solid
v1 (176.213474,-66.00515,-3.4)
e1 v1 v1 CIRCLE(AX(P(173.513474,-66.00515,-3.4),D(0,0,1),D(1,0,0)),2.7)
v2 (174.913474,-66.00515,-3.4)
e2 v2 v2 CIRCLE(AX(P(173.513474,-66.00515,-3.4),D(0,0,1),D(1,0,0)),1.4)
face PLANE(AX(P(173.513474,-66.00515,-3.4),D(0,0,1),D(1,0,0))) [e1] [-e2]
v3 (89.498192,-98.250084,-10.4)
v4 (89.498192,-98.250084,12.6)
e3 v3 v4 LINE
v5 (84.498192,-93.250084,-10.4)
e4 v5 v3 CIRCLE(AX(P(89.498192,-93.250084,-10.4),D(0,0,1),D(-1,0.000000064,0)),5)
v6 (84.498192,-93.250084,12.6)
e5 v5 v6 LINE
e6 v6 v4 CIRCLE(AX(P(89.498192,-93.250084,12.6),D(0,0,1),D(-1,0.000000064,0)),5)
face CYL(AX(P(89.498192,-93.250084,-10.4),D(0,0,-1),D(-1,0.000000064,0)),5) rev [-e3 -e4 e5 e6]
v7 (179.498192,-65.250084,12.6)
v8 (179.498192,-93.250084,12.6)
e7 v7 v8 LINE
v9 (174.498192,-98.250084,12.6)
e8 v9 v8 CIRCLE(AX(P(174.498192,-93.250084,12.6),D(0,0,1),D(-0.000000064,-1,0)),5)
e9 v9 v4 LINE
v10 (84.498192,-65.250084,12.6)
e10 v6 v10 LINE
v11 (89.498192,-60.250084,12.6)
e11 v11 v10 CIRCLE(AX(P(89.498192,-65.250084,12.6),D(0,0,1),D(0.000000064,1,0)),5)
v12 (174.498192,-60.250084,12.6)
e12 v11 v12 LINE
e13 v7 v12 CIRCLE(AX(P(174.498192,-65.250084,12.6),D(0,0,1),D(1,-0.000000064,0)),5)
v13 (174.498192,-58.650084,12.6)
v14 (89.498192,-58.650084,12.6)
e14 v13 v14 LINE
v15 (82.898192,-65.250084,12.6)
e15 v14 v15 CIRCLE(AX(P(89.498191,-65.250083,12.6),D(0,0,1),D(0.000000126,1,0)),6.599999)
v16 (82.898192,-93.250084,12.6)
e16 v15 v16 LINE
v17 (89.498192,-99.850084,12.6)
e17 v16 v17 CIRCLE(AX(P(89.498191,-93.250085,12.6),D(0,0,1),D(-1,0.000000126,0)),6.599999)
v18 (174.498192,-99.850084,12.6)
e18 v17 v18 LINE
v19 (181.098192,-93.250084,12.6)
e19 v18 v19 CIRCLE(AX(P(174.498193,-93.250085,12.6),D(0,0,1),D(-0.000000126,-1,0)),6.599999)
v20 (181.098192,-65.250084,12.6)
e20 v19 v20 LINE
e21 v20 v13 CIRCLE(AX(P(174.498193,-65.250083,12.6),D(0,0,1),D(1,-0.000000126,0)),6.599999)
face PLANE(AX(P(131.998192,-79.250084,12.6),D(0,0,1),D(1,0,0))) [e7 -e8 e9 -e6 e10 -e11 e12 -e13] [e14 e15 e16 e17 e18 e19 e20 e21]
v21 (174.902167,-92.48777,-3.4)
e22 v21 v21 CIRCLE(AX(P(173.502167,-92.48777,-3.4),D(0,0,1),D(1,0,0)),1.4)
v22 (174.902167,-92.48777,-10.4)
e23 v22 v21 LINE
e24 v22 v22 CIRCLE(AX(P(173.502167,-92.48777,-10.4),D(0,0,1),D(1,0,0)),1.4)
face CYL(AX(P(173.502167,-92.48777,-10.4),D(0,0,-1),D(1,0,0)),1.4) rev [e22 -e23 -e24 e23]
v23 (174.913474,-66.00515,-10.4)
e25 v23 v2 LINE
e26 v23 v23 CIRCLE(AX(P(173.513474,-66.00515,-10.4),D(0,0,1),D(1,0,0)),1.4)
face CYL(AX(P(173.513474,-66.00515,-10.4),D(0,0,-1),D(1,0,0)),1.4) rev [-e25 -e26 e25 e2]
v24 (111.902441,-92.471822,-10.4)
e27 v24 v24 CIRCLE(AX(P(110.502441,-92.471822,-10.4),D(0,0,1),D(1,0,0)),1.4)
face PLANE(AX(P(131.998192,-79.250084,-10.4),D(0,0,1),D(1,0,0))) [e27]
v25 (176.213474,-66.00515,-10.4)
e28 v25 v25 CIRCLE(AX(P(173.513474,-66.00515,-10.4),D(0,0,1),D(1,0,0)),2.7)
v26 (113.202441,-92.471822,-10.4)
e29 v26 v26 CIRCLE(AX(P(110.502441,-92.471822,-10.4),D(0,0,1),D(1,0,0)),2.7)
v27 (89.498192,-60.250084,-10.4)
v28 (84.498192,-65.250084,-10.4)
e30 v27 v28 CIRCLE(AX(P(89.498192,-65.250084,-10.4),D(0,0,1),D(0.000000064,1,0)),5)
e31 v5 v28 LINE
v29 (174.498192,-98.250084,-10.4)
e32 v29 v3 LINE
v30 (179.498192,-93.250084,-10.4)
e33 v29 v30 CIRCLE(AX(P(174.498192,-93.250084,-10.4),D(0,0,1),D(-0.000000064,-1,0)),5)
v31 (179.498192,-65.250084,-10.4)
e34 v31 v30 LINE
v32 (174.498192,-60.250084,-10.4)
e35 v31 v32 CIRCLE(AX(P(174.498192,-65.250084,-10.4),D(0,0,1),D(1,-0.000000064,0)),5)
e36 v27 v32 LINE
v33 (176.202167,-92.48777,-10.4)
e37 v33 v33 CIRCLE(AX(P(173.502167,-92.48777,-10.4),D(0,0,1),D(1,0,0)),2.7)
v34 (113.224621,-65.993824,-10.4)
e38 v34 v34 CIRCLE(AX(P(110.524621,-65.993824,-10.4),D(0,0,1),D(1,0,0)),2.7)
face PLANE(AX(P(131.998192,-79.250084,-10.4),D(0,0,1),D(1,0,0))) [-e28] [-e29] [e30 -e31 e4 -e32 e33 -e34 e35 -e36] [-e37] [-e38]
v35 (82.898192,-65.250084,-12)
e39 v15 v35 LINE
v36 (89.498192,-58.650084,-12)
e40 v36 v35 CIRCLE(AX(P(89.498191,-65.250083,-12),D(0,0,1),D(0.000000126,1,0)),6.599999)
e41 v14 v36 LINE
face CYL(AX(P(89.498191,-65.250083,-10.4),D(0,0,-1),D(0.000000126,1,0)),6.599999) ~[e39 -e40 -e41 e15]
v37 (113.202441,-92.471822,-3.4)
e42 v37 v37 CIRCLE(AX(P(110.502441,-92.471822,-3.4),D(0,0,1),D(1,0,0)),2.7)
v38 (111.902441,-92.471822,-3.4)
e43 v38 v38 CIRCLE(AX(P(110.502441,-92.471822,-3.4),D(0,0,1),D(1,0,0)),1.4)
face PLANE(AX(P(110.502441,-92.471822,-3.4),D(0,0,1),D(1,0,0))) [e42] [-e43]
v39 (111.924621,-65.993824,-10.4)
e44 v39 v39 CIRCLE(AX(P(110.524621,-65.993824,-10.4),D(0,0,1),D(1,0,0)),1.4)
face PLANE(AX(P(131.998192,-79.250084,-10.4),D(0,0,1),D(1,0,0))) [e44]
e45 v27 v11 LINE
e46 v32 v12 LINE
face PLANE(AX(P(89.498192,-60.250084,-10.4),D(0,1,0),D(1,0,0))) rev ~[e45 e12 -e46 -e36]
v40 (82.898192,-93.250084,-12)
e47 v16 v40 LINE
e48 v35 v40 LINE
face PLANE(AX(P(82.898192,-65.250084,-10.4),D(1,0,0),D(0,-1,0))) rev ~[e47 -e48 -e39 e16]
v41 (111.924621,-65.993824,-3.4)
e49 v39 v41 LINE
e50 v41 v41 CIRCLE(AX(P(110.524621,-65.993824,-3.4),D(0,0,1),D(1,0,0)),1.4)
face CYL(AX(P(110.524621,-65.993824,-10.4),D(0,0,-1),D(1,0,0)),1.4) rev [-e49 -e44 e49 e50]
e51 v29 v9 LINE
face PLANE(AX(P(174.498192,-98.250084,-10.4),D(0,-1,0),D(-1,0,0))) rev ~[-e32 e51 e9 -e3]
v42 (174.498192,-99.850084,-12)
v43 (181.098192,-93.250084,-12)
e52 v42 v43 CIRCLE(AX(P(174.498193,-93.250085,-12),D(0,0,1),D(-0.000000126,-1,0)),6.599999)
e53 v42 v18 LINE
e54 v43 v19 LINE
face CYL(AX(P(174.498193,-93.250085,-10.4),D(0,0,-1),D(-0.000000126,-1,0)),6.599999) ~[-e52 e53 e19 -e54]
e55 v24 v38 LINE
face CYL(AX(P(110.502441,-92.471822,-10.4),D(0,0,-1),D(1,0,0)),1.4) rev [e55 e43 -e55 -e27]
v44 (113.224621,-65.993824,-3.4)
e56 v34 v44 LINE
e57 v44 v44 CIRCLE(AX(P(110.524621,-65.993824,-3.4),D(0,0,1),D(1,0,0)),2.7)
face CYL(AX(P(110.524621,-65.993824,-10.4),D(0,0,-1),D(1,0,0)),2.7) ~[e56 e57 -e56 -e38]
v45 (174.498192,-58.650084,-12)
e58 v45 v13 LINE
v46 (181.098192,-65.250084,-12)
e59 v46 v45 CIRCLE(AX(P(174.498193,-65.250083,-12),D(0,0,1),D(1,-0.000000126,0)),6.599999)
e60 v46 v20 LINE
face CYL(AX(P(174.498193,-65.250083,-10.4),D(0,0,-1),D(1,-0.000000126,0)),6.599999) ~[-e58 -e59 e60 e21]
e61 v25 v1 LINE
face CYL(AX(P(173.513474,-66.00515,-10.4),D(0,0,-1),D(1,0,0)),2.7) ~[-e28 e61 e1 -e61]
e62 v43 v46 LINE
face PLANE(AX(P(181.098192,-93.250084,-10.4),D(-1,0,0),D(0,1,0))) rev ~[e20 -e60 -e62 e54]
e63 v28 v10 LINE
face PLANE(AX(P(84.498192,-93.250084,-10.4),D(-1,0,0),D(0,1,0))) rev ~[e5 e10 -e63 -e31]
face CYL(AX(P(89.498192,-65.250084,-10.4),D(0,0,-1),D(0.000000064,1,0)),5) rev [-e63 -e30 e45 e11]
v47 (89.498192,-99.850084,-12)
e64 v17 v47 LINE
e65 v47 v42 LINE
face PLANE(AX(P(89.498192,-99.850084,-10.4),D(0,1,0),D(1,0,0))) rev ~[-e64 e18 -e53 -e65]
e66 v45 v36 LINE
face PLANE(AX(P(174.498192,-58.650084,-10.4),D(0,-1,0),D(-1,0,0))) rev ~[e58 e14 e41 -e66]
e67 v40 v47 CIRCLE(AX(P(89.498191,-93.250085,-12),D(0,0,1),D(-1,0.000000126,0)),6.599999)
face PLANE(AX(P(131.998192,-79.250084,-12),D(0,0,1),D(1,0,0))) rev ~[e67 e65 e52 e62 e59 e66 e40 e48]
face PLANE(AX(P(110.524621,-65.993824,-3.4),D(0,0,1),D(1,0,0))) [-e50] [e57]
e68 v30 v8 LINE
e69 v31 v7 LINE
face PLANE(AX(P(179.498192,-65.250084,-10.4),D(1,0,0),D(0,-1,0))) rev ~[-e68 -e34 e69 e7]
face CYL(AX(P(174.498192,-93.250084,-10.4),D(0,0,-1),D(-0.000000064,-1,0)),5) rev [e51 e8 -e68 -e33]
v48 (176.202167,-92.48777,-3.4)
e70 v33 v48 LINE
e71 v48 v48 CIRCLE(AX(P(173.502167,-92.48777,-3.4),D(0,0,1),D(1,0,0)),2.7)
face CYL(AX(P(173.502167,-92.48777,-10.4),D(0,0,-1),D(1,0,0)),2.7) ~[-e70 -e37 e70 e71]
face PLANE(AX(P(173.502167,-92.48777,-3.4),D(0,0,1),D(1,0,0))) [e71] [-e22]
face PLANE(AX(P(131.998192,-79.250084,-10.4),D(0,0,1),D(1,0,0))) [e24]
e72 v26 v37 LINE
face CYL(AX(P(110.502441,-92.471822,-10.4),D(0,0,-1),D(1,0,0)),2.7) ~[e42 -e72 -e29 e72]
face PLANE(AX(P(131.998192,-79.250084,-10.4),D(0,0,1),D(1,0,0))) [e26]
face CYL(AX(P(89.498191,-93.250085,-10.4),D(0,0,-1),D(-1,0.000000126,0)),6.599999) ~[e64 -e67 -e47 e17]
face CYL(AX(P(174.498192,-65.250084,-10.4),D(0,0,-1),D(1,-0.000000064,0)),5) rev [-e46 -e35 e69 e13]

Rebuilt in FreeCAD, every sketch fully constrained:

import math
import FreeCAD as App
import Part
import Sketcher

doc = App.newDocument("Part")
body = doc.addObject("PartDesign::Body", "Body")
body.AllowCompound = True

sketch1 = body.newObject("Sketcher::SketchObject", "Sketch")
sketch1.AttachmentSupport = (doc.getObject("XY_Plane"), [""])
sketch1.MapMode = "FlatFace"
sketch1.AttachmentOffset = App.Placement(App.Vector(0, 0, -10.4), App.Rotation())
sketch1.addGeometry([
    Part.Circle(App.Vector(90.5, -66, 0), App.Vector(0, 0, 1), 2.7),
    Part.Circle(App.Vector(90.5, -66, 0), App.Vector(0, 0, 1), 1.4),
    Part.Circle(App.Vector(90.5, -92.5, 0), App.Vector(0, 0, 1), 2.7),
    Part.Circle(App.Vector(90.5, -92.5, 0), App.Vector(0, 0, 1), 1.4),
    Part.Circle(App.Vector(153.5, -66, 0), App.Vector(0, 0, 1), 2.7),
    Part.Circle(App.Vector(153.5, -66, 0), App.Vector(0, 0, 1), 1.4),
    Part.Circle(App.Vector(153.5, -92.5, 0), App.Vector(0, 0, 1), 2.7),
    Part.Circle(App.Vector(153.5, -92.5, 0), App.Vector(0, 0, 1), 1.4),
], False)
sketch1.addConstraint([
    Sketcher.Constraint("Coincident", 1, 3, 0, 3),
    Sketcher.Constraint("Coincident", 3, 3, 2, 3),
    Sketcher.Constraint("Coincident", 5, 3, 4, 3),
    Sketcher.Constraint("Coincident", 7, 3, 6, 3),
    Sketcher.Constraint("Equal", 0, 2),
    Sketcher.Constraint("Equal", 1, 3),
    Sketcher.Constraint("Equal", 2, 4),
    Sketcher.Constraint("Equal", 3, 5),
    Sketcher.Constraint("Equal", 4, 6),
    Sketcher.Constraint("Equal", 5, 7),
    Sketcher.Constraint("Diameter", 0, 5.4),
    Sketcher.Constraint("Diameter", 1, 2.8),
    Sketcher.Constraint("DistanceX", -1, 1, 0, 3, 90.524621),
    Sketcher.Constraint("DistanceX", -1, 1, 2, 3, 90.502441),
    Sketcher.Constraint("DistanceY", 4, 3, -1, 1, 66.00515),
    Sketcher.Constraint("DistanceY", 6, 3, -1, 1, 92.48777),
    Sketcher.Constraint("DistanceY", 0, 3, -1, 1, 65.993824),
    Sketcher.Constraint("DistanceY", 2, 3, -1, 1, 92.471822),
    Sketcher.Constraint("DistanceX", -1, 1, 4, 3, 153.513474),
    Sketcher.Constraint("DistanceX", -1, 1, 6, 3, 153.502167),
])
pad1 = body.newObject("PartDesign::Pad", "Pad")
pad1.Profile = sketch1
pad1.Length = 7
body2 = doc.addObject("PartDesign::Body", "Body001")
body2.AllowCompound = True
doc.recompute()

body.Placement = App.Placement(App.Vector(20, 0, 0), App.Rotation(App.Vector(0, 0, 1), 0))
boolean = body2.newObject("PartDesign::Boolean", "Boolean")
boolean.Type = "Fuse"
boolean.addObjects([body])
body3 = doc.addObject("PartDesign::Body", "Body002")

sketch2 = body3.newObject("Sketcher::SketchObject", "Sketch001")
sketch2.AttachmentSupport = (doc.getObject("XY_Plane002"), [""])
sketch2.MapMode = "FlatFace"
sketch2.addGeometry([
    Part.LineSegment(App.Vector(89.5, -99.9, 0), App.Vector(174.5, -99.9, 0)),
    Part.ArcOfCircle(Part.Circle(App.Vector(174.5, -93.3, 0), App.Vector(0, 0, 1), 6.6), math.radians(-90), math.radians(0)),
    Part.LineSegment(App.Vector(181.1, -93.3, 0), App.Vector(181.1, -65.3, 0)),
    Part.ArcOfCircle(Part.Circle(App.Vector(174.5, -65.3, 0), App.Vector(0, 0, 1), 6.6), math.radians(0), math.radians(90)),
    Part.LineSegment(App.Vector(174.5, -58.7, 0), App.Vector(89.5, -58.7, 0)),
    Part.ArcOfCircle(Part.Circle(App.Vector(89.5, -65.3, 0), App.Vector(0, 0, 1), 6.6), math.radians(90), math.radians(180)),
    Part.LineSegment(App.Vector(82.9, -65.3, 0), App.Vector(82.9, -93.3, 0)),
    Part.ArcOfCircle(Part.Circle(App.Vector(89.5, -93.3, 0), App.Vector(0, 0, 1), 6.6), math.radians(180), math.radians(270)),
    Part.ArcOfCircle(Part.Circle(App.Vector(89.5, -65.3, 0), App.Vector(0, 0, 1), 5), math.radians(90), math.radians(180)),
    Part.LineSegment(App.Vector(89.5, -60.3, 0), App.Vector(174.5, -60.3, 0)),
    Part.ArcOfCircle(Part.Circle(App.Vector(174.5, -65.3, 0), App.Vector(0, 0, 1), 5), math.radians(0), math.radians(90)),
    Part.LineSegment(App.Vector(179.5, -65.3, 0), App.Vector(179.5, -93.3, 0)),
    Part.ArcOfCircle(Part.Circle(App.Vector(174.5, -93.3, 0), App.Vector(0, 0, 1), 5), math.radians(-90), math.radians(0)),
    Part.LineSegment(App.Vector(174.5, -98.3, 0), App.Vector(89.5, -98.3, 0)),
    Part.ArcOfCircle(Part.Circle(App.Vector(89.5, -93.3, 0), App.Vector(0, 0, 1), 5), math.radians(180), math.radians(270)),
    Part.LineSegment(App.Vector(84.5, -93.3, 0), App.Vector(84.5, -65.3, 0)),
], False)
sketch2.addConstraint([
    Sketcher.Constraint("Tangent", 0, 2, 1, 1),
    Sketcher.Constraint("Tangent", 1, 2, 2, 1),
    Sketcher.Constraint("Tangent", 2, 2, 3, 1),
    Sketcher.Constraint("Tangent", 3, 2, 4, 1),
    Sketcher.Constraint("Tangent", 4, 2, 5, 1),
    Sketcher.Constraint("Tangent", 5, 2, 6, 1),
    Sketcher.Constraint("Tangent", 6, 2, 7, 1),
    Sketcher.Constraint("Tangent", 7, 2, 0, 1),
    Sketcher.Constraint("Tangent", 8, 1, 9, 1),
    Sketcher.Constraint("Tangent", 9, 2, 10, 2),
    Sketcher.Constraint("Tangent", 10, 1, 11, 1),
    Sketcher.Constraint("Tangent", 11, 2, 12, 2),
    Sketcher.Constraint("Tangent", 12, 1, 13, 1),
    Sketcher.Constraint("Tangent", 13, 2, 14, 2),
    Sketcher.Constraint("Tangent", 14, 1, 15, 1),
    Sketcher.Constraint("Tangent", 15, 2, 8, 2),
    Sketcher.Constraint("Horizontal", 0),
    Sketcher.Constraint("Vertical", 2),
    Sketcher.Constraint("Horizontal", 4),
    Sketcher.Constraint("Vertical", 6),
    Sketcher.Constraint("Horizontal", 9),
    Sketcher.Constraint("Vertical", 11),
    Sketcher.Constraint("Horizontal", 13),
    Sketcher.Constraint("Vertical", 15),
    Sketcher.Constraint("Coincident", 8, 3, 5, 3),
    Sketcher.Constraint("Coincident", 10, 3, 3, 3),
    Sketcher.Constraint("Coincident", 12, 3, 1, 3),
    Sketcher.Constraint("Equal", 1, 3),
    Sketcher.Constraint("Equal", 3, 5),
    Sketcher.Constraint("Equal", 5, 7),
    Sketcher.Constraint("Equal", 12, 14),
    Sketcher.Constraint("Radius", 8, 5.0),
    Sketcher.Constraint("Radius", 1, 6.599999),
    Sketcher.Constraint("DistanceX", 0, 1, 0, 2, 85.0),
    Sketcher.Constraint("DistanceY", 2, 1, 2, 2, 28.0),
    Sketcher.Constraint("DistanceX", -1, 1, 5, 3, 89.498191),
    Sketcher.Constraint("DistanceY", 1, 3, -1, 1, 93.250085),
])
pad2 = body3.newObject("PartDesign::Pad", "Pad001")
pad2.Profile = sketch2
pad2.Length = 23
body4 = doc.addObject("PartDesign::Body", "Body003")
doc.recompute()

body3.Placement = App.Placement(App.Vector(0, 0, -10.4), App.Rotation(App.Vector(0, 0, 1), 0))
boolean2 = body4.newObject("PartDesign::Boolean", "Boolean001")
boolean2.Type = "Fuse"
boolean2.addObjects([body3])
body5 = doc.addObject("PartDesign::Body", "Body004")

sketch3 = body5.newObject("Sketcher::SketchObject", "Sketch002")
sketch3.AttachmentSupport = (doc.getObject("XY_Plane004"), [""])
sketch3.MapMode = "FlatFace"
sketch3.addGeometry([
    Part.LineSegment(App.Vector(89, -100, 0), App.Vector(174, -100, 0)),
    Part.ArcOfCircle(Part.Circle(App.Vector(174, -93, 0), App.Vector(0, 0, 1), 7), math.radians(-90), math.radians(0)),
    Part.LineSegment(App.Vector(181, -93, 0), App.Vector(181, -65, 0)),
    Part.ArcOfCircle(Part.Circle(App.Vector(174, -65, 0), App.Vector(0, 0, 1), 7), math.radians(0), math.radians(90)),
    Part.LineSegment(App.Vector(174, -59, 0), App.Vector(89, -59, 0)),
    Part.ArcOfCircle(Part.Circle(App.Vector(89, -65, 0), App.Vector(0, 0, 1), 7), math.radians(90), math.radians(180)),
    Part.LineSegment(App.Vector(83, -65, 0), App.Vector(83, -93, 0)),
    Part.ArcOfCircle(Part.Circle(App.Vector(89, -93, 0), App.Vector(0, 0, 1), 7), math.radians(180), math.radians(270)),
], False)
sketch3.addConstraint([
    Sketcher.Constraint("Tangent", 0, 2, 1, 1),
    Sketcher.Constraint("Tangent", 1, 2, 2, 1),
    Sketcher.Constraint("Tangent", 2, 2, 3, 1),
    Sketcher.Constraint("Tangent", 3, 2, 4, 1),
    Sketcher.Constraint("Tangent", 4, 2, 5, 1),
    Sketcher.Constraint("Tangent", 5, 2, 6, 1),
    Sketcher.Constraint("Tangent", 6, 2, 7, 1),
    Sketcher.Constraint("Tangent", 7, 2, 0, 1),
    Sketcher.Constraint("Horizontal", 0),
    Sketcher.Constraint("Vertical", 2),
    Sketcher.Constraint("Horizontal", 4),
    Sketcher.Constraint("Vertical", 6),
    Sketcher.Constraint("Equal", 1, 3),
    Sketcher.Constraint("Equal", 3, 5),
    Sketcher.Constraint("Equal", 5, 7),
    Sketcher.Constraint("Radius", 1, 6.599999),
    Sketcher.Constraint("DistanceX", 0, 1, 0, 2, 85.0),
    Sketcher.Constraint("DistanceY", 2, 1, 2, 2, 28.0),
    Sketcher.Constraint("DistanceX", -1, 1, 5, 3, 89.498191),
    Sketcher.Constraint("DistanceY", 1, 3, -1, 1, 93.250085),
])
pad3 = body5.newObject("PartDesign::Pad", "Pad002")
pad3.Profile = sketch3
pad3.Length = 1.6
body6 = doc.addObject("PartDesign::Body", "Body005")
doc.recompute()

body5.Placement = App.Placement(App.Vector(0, 0, -12), App.Rotation(App.Vector(0, 0, 1), 0))
boolean3 = body6.newObject("PartDesign::Boolean", "Boolean002")
boolean3.Type = "Fuse"
boolean3.addObjects([body5])
doc.recompute()

boolean4 = body6.newObject("PartDesign::Boolean", "Boolean003")
boolean4.Type = "Fuse"
boolean4.addObjects([body2])
doc.recompute()

boolean5 = body6.newObject("PartDesign::Boolean", "Boolean004")
boolean5.Type = "Fuse"
boolean5.addObjects([body4])

doc.recompute()
